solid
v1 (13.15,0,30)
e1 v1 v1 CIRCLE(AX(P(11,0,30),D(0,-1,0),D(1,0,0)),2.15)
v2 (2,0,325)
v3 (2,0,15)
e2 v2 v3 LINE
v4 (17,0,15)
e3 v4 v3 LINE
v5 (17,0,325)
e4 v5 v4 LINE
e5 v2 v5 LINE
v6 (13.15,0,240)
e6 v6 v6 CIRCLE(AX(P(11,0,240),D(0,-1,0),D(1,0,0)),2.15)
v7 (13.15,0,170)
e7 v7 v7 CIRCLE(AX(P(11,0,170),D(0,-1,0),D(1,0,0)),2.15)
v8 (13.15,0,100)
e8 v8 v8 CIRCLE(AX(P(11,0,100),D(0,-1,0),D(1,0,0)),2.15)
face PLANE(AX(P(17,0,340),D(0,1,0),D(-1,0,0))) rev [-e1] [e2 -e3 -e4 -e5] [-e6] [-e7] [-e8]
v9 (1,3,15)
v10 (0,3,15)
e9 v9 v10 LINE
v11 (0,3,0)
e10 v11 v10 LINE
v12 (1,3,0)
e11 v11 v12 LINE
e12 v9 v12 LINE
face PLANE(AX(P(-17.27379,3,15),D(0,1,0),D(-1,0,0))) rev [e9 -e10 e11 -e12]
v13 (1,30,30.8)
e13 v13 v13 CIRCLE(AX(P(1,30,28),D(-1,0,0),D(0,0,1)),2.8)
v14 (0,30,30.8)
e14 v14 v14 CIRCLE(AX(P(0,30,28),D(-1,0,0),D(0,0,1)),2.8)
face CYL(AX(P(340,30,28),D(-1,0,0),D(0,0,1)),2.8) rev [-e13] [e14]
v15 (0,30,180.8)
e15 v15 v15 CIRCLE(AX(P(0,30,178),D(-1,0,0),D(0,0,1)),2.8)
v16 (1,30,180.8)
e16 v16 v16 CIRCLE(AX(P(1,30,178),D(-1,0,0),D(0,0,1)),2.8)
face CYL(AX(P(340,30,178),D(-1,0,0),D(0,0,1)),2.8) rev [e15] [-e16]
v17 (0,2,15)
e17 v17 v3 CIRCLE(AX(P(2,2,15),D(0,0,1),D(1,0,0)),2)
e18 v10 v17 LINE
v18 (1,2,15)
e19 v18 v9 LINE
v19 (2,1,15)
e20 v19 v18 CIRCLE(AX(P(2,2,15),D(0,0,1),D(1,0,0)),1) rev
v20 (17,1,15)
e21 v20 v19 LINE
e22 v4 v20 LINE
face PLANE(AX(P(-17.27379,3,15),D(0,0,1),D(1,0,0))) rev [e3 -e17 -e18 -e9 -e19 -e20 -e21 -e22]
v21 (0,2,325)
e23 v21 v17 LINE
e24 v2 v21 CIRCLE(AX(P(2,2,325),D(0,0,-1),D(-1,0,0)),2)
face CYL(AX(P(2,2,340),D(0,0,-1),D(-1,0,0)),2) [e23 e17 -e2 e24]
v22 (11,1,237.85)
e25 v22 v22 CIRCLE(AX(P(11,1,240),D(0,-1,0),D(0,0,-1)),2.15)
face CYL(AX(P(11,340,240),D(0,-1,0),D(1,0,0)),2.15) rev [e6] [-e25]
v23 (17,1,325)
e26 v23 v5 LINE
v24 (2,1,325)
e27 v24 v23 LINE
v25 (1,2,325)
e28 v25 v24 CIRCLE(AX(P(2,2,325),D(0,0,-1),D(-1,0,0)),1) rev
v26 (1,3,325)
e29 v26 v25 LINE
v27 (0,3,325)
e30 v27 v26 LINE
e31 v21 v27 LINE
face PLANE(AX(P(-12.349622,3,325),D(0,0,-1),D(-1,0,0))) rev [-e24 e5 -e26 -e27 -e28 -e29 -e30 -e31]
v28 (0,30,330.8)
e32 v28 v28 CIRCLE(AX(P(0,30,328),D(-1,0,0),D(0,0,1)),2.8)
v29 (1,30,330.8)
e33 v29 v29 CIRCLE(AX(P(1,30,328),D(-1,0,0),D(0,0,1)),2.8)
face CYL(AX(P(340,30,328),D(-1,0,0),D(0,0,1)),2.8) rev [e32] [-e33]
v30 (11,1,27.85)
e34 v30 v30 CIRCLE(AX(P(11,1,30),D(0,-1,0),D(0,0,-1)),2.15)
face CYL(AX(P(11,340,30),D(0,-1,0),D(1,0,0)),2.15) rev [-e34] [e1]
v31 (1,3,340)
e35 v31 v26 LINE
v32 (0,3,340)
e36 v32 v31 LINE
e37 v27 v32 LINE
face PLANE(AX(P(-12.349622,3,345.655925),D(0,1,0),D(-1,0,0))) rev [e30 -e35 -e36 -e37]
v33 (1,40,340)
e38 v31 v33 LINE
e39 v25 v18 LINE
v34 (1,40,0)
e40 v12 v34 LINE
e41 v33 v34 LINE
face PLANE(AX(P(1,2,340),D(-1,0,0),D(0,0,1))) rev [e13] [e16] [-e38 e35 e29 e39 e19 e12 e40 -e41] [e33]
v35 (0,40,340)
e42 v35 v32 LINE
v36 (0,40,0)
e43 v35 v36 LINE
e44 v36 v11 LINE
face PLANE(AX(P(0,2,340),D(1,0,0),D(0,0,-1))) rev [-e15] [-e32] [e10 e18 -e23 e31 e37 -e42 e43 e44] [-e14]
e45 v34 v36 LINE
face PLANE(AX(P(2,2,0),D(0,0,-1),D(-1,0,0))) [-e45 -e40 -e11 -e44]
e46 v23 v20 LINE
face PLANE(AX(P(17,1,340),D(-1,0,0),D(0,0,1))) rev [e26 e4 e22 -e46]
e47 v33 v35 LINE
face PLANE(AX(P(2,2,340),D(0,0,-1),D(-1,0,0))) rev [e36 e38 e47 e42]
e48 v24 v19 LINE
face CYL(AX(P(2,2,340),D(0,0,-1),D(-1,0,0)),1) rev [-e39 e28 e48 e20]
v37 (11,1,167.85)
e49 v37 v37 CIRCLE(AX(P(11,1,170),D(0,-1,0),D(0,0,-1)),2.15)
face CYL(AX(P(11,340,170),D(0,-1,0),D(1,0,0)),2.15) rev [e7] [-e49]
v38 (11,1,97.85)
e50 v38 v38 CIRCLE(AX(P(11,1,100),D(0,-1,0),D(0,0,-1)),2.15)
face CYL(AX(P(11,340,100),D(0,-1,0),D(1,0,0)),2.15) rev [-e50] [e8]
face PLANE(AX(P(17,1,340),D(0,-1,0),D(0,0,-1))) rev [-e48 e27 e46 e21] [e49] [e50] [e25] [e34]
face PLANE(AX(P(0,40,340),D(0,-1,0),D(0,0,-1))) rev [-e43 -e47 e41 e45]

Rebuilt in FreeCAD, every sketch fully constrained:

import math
import FreeCAD as App
import Part
import Sketcher
from FreeCAD import Vector


def add_polygon(sketch, points):
    """Adds a closed chain of lines whose ends are joined by coincident constraints."""
    first, n = sketch.GeometryCount, len(points)
    for a, b in zip(points, points[1:] + points[:1]):
        sketch.addGeometry(Part.LineSegment(App.Vector(*a, 0), App.Vector(*b, 0)), False)
    for i in range(n):
        sketch.addConstraint(Sketcher.Constraint("Coincident", first + i, 2, first + (i + 1) % n, 1))

doc = App.newDocument("Part")
params = doc.addObject("Spreadsheet::Sheet", "Params")
for row, (alias, value) in enumerate([
    ("sketch1_radius", "1 mm"),
    ("sketch1_radius2", "2 mm"),
    ("sketch1_width", "15 mm"),
    ("sketch1_height", "38 mm"),
    ("pad1_length", "340 mm"),
    ("sketch2_diameter", "5.6 mm"),
    ("pocket1_length", "340 mm"),
    ("sketch3_diameter", "4.3 mm"),
    ("pocket2_length", "340 mm"),
    ("sketch4_height", "15 mm"),
    ("pocket3_length", "3 mm"),
], start=1):
    params.set(f"A{row}", alias)
    params.set(f"B{row}", "=" + value)
    params.setAlias(f"B{row}", alias)

body = doc.addObject("PartDesign::Body", "Body")

# Sketch on XY plane
sketch1 = body.newObject("Sketcher::SketchObject", "Sketch")
sketch1.AttachmentSupport = (doc.getObject("XY_Plane"), [""])
sketch1.MapMode = "FlatFace"
sketch1.addGeometry([
    Part.LineSegment(Vector(2, 0, 0), Vector(17, 0, 0)),  # 0
    Part.LineSegment(Vector(17, 0, 0), Vector(17, 1, 0)),  # 1
    Part.LineSegment(Vector(17, 1, 0), Vector(2, 1, 0)),  # 2
    Part.ArcOfCircle(Part.Circle(Vector(2, 2, 0), Vector(0, 0, 1), 1), math.radians(-180), math.radians(-90)),  # 3
    Part.LineSegment(Vector(1, 2, 0), Vector(1, 40, 0)),  # 4
    Part.LineSegment(Vector(1, 40, 0), Vector(0, 40, 0)),  # 5
    Part.LineSegment(Vector(0, 40, 0), Vector(0, 2, 0)),  # 6
    Part.ArcOfCircle(Part.Circle(Vector(2, 2, 0), Vector(0, 0, 1), 2), math.radians(-180), math.radians(-90)),  # 7
], False)
sketch1.addConstraint([
    Sketcher.Constraint("Coincident", 0, 2, 1, 1),
    Sketcher.Constraint("Coincident", 1, 2, 2, 1),
    Sketcher.Constraint("Tangent", 2, 2, 3, 2),
    Sketcher.Constraint("Tangent", 3, 1, 4, 1),
    Sketcher.Constraint("Coincident", 4, 2, 5, 1),
    Sketcher.Constraint("Coincident", 5, 2, 6, 1),
    Sketcher.Constraint("Tangent", 6, 2, 7, 1),
    Sketcher.Constraint("Tangent", 7, 2, 0, 1),
    Sketcher.Constraint("Horizontal", 0),
    Sketcher.Constraint("Vertical", 1),
    Sketcher.Constraint("Horizontal", 2),
    Sketcher.Constraint("Vertical", 4),
    Sketcher.Constraint("Horizontal", 5),
    Sketcher.Constraint("Vertical", 6),
    Sketcher.Constraint("Coincident", 7, 3, 3, 3),
    Sketcher.Constraint("PointOnObject", 0, 2, -1),
    Sketcher.Constraint("PointOnObject", 5, 2, -2),
    Sketcher.Constraint("Radius", 3, 1.0),
    Sketcher.Constraint("Radius", 7, 2.0),
    Sketcher.Constraint("DistanceX", 0, 1, 0, 2, 15.0),
    Sketcher.Constraint("DistanceY", 4, 1, 4, 2, 38.0),
])
sketch1.setExpression("Constraints[17]", "Params.sketch1_radius")
sketch1.setExpression("Constraints[18]", "Params.sketch1_radius2")
sketch1.setExpression("Constraints[19]", "Params.sketch1_width")
sketch1.setExpression("Constraints[20]", "Params.sketch1_height")
pad1 = body.newObject("PartDesign::Pad", "Pad")
pad1.Profile = sketch1
pad1.setExpression("Length", "Params.pad1_length")

# Sketch on YZ plane
sketch2 = body.newObject("Sketcher::SketchObject", "Sketch001")
sketch2.AttachmentSupport = (doc.getObject("YZ_Plane"), [""])
sketch2.MapMode = "FlatFace"
sketch2.addGeometry([
    Part.Circle(Vector(30, 28, 0), Vector(0, 0, 1), 2.8),
    Part.Circle(Vector(30, 178, 0), Vector(0, 0, 1), 2.8),
    Part.Circle(Vector(30, 328, 0), Vector(0, 0, 1), 2.8),
], False)
sketch2.addConstraint([
    Sketcher.Constraint("Equal", 0, 1),
    Sketcher.Constraint("Equal", 1, 2),
    Sketcher.Constraint("Vertical", 0, 3, 1, 3),
    Sketcher.Constraint("Vertical", 1, 3, 2, 3),
    Sketcher.Constraint("Diameter", 0, 5.6),
    Sketcher.Constraint("DistanceX", -1, 1, 0, 3, 30.0),
    Sketcher.Constraint("DistanceY", -1, 1, 0, 3, 28.0),
    Sketcher.Constraint("DistanceY", -1, 1, 1, 3, 178.0),
    Sketcher.Constraint("DistanceY", -1, 1, 2, 3, 328.0),
])
sketch2.setExpression("Constraints[4]", "Params.sketch2_diameter")
pocket1 = body.newObject("PartDesign::Pocket", "Pocket")
pocket1.Profile = sketch2
pocket1.setExpression("Length", "Params.pocket1_length")
pocket1.Reversed = True

# Sketch on XZ plane
sketch3 = body.newObject("Sketcher::SketchObject", "Sketch002")
sketch3.AttachmentSupport = (doc.getObject("XZ_Plane"), [""])
sketch3.MapMode = "FlatFace"
sketch3.addGeometry([
    Part.Circle(Vector(11, 30, 0), Vector(0, 0, 1), 2.1),
    Part.Circle(Vector(11, 100, 0), Vector(0, 0, 1), 2.1),
    Part.Circle(Vector(11, 170, 0), Vector(0, 0, 1), 2.1),
    Part.Circle(Vector(11, 240, 0), Vector(0, 0, 1), 2.1),
], False)
sketch3.addConstraint([
    Sketcher.Constraint("Equal", 0, 1),
    Sketcher.Constraint("Equal", 1, 2),
    Sketcher.Constraint("Equal", 2, 3),
    Sketcher.Constraint("Vertical", 0, 3, 1, 3),
    Sketcher.Constraint("Vertical", 1, 3, 2, 3),
    Sketcher.Constraint("Vertical", 2, 3, 3, 3),
    Sketcher.Constraint("Diameter", 0, 4.3),
    Sketcher.Constraint("DistanceX", -1, 1, 0, 3, 11.0),
    Sketcher.Constraint("DistanceY", -1, 1, 0, 3, 30.0),
    Sketcher.Constraint("DistanceY", -1, 1, 1, 3, 100.0),
    Sketcher.Constraint("DistanceY", -1, 1, 2, 3, 170.0),
    Sketcher.Constraint("DistanceY", -1, 1, 3, 3, 240.0),
])
sketch3.setExpression("Constraints[6]", "Params.sketch3_diameter")
pocket2 = body.newObject("PartDesign::Pocket", "Pocket001")
pocket2.Profile = sketch3
pocket2.setExpression("Length", "Params.pocket2_length")

# Sketch on XZ plane
sketch4 = body.newObject("Sketcher::SketchObject", "Sketch003")
sketch4.AttachmentSupport = (doc.getObject("XZ_Plane"), [""])
sketch4.MapMode = "FlatFace"
add_polygon(sketch4, [(-12, 346), (-12, 325), (25, 325), (25, 346)])  # lines 0-3
add_polygon(sketch4, [(-17, 15), (-17, 0), (25, 0), (25, 15)])  # lines 4-7
sketch4.addConstraint([
    Sketcher.Constraint("Vertical", 0),
    Sketcher.Constraint("Horizontal", 1),
    Sketcher.Constraint("Vertical", 2),
    Sketcher.Constraint("Horizontal", 3),
    Sketcher.Constraint("Vertical", 4),
    Sketcher.Constraint("Horizontal", 5),
    Sketcher.Constraint("Vertical", 6),
    Sketcher.Constraint("Horizontal", 7),
    Sketcher.Constraint("PointOnObject", 4, 2, -1),
    Sketcher.Constraint("Vertical", 2, 2, 5, 2),
    Sketcher.Constraint("DistanceY", 4, 2, 4, 1, 15.0),
    Sketcher.Constraint("DistanceY", -1, 1, 0, 2, 325.0),
    Sketcher.Constraint("DistanceX", 5, 1, 5, 2, 42.54746),
    Sketcher.Constraint("DistanceX", 1, 1, 1, 2, 37.623292),
    Sketcher.Constraint("DistanceY", 0, 2, 0, 1, 20.655925),
    Sketcher.Constraint("DistanceX", 0, 2, -1, 1, 12.349622),
])
sketch4.setExpression("Constraints[18]", "Params.sketch4_height")
pocket3 = body.newObject("PartDesign::Pocket", "Pocket002")
pocket3.Profile = sketch4
pocket3.setExpression("Length", "Params.pocket3_length")

doc.recompute()
